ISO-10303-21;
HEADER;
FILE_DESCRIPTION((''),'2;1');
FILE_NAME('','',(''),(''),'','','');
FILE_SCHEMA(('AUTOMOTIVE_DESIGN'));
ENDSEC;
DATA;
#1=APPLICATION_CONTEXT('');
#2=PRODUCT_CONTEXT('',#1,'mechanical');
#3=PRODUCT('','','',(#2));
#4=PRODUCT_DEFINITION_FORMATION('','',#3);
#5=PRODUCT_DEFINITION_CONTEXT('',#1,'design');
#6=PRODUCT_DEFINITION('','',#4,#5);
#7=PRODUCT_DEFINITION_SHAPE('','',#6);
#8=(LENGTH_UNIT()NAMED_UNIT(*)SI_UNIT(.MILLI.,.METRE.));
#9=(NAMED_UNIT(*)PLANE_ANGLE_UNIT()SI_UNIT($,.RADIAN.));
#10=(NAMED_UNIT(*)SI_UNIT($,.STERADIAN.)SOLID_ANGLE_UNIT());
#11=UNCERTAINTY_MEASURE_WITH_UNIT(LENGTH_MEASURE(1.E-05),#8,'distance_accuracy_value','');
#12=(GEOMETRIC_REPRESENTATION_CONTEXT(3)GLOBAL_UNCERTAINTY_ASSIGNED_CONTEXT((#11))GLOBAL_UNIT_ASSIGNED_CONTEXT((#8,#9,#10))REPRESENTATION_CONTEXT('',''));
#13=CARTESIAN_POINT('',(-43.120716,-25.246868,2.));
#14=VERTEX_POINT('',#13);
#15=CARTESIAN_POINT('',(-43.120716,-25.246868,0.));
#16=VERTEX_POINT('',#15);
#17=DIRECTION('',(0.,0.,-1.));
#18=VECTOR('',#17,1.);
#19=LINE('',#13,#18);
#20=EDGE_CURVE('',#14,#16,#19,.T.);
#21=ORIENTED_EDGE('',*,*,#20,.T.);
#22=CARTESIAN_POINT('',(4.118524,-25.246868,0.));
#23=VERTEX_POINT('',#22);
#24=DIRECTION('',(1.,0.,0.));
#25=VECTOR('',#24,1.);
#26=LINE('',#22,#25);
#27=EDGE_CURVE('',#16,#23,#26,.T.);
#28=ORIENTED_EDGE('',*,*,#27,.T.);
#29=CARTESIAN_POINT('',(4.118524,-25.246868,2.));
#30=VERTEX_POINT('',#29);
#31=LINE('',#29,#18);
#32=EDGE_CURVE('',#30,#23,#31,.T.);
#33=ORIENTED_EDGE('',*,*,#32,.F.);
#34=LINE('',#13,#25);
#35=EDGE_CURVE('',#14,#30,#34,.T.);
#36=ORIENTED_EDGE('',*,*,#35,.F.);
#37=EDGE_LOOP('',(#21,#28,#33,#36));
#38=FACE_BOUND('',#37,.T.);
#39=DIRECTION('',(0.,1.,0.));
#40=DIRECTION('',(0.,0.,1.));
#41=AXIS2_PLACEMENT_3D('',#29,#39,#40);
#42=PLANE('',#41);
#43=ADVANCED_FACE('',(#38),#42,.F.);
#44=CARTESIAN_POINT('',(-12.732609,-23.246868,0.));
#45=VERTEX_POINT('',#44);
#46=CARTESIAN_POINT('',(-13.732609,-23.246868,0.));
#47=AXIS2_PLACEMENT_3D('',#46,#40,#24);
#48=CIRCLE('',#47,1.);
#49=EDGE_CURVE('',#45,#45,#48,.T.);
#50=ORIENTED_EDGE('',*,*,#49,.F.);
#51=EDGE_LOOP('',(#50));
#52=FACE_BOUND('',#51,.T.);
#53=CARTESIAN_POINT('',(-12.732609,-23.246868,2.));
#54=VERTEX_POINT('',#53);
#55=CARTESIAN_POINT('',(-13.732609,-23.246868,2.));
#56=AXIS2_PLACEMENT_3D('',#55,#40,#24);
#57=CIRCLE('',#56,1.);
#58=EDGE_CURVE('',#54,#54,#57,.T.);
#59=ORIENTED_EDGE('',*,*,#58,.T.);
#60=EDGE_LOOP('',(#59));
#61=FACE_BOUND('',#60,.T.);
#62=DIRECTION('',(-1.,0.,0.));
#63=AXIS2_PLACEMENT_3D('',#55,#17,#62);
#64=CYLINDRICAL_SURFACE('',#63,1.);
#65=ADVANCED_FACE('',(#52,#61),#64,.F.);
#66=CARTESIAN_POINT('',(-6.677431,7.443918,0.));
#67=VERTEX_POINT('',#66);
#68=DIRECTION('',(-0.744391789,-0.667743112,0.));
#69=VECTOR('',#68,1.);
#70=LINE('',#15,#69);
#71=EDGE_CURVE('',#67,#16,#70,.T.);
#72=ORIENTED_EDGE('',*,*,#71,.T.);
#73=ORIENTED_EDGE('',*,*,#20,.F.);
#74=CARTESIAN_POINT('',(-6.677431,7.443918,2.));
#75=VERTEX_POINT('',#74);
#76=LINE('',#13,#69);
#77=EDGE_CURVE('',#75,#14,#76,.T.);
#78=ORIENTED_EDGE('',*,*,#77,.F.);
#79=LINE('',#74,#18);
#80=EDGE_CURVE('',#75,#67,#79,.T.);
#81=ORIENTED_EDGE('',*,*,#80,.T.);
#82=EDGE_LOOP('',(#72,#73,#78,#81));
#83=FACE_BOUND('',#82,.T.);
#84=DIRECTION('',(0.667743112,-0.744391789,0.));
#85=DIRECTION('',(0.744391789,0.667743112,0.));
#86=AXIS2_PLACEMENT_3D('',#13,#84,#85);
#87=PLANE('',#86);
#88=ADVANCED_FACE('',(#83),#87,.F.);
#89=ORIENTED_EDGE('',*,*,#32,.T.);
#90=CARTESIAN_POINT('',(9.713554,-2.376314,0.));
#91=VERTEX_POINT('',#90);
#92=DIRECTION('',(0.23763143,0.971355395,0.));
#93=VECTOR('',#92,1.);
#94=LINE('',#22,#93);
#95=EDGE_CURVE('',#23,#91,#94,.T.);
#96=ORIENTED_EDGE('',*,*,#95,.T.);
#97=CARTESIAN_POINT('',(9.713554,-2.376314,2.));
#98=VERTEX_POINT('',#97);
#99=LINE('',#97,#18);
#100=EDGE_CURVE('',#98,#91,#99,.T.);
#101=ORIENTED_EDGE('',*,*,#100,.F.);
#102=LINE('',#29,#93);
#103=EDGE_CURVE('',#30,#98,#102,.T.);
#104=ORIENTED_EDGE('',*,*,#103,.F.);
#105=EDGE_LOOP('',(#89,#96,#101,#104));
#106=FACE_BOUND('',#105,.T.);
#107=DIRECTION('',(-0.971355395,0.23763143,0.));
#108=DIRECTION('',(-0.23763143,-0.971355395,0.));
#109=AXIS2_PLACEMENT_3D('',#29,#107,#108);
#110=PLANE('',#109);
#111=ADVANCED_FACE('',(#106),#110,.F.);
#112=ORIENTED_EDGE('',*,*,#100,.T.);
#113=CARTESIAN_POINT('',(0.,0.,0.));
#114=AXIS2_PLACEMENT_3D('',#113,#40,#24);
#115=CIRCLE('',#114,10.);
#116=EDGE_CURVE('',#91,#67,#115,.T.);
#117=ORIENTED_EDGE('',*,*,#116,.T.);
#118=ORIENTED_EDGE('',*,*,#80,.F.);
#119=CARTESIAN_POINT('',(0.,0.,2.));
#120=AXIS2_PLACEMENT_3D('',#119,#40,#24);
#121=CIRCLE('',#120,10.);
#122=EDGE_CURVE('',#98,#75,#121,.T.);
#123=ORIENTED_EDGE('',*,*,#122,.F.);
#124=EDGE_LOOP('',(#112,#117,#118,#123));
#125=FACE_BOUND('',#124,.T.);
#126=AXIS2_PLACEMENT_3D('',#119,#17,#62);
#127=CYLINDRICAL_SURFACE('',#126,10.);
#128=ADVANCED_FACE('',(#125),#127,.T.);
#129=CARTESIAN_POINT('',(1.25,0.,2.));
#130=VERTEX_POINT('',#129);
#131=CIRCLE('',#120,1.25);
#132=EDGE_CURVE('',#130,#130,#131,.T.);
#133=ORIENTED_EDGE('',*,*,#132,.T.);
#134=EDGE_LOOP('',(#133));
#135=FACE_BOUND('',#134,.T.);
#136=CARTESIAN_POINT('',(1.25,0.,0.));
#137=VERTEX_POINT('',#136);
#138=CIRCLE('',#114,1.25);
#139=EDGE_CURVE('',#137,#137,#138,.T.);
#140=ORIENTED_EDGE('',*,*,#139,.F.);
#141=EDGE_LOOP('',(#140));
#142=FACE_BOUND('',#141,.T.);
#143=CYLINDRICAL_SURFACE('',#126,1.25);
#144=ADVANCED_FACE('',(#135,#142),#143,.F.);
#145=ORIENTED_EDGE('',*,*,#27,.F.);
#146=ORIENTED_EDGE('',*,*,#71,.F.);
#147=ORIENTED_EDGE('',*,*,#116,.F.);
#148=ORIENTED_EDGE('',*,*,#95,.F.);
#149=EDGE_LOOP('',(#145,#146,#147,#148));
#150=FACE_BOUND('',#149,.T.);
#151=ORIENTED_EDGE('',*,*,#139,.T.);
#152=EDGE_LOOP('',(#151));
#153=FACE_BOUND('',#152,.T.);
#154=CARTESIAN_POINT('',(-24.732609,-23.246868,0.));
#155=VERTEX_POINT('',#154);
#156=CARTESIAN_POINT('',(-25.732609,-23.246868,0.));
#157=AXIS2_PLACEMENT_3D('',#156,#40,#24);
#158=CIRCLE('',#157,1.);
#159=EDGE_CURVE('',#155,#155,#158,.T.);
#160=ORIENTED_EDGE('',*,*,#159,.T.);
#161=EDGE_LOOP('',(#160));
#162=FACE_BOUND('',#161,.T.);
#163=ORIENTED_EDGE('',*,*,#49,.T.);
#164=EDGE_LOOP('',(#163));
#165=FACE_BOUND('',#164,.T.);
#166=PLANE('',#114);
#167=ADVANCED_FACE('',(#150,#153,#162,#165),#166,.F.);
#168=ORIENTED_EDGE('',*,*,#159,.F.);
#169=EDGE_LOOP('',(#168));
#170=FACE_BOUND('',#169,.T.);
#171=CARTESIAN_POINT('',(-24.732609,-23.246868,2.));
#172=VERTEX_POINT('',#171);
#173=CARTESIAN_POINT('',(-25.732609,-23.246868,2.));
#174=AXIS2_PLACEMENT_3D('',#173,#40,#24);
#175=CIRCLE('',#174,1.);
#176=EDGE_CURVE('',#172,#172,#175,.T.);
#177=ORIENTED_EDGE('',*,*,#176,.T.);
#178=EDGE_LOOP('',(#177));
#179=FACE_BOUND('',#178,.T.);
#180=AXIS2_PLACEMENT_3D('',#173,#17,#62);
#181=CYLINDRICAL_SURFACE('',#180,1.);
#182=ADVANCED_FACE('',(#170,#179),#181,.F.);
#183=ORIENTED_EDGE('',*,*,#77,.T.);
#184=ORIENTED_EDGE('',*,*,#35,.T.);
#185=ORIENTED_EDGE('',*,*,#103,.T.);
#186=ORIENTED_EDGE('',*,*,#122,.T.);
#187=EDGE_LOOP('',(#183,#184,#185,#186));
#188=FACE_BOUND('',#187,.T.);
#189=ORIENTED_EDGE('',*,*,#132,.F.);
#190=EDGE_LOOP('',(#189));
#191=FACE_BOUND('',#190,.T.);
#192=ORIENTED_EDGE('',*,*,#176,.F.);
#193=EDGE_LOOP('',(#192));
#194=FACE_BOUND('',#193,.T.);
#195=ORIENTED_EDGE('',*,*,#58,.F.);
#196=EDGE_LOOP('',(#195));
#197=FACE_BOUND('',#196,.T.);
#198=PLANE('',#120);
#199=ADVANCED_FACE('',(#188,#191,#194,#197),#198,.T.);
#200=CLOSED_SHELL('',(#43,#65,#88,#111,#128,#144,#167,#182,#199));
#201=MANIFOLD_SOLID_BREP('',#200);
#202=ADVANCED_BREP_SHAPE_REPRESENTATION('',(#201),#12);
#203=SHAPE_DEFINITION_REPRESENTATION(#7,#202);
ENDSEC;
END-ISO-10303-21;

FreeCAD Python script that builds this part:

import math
import FreeCAD as App
import Part
import Sketcher

doc = App.newDocument("Part")
body = doc.addObject("PartDesign::Body", "Body")

# Sketch on XY plane
sketch1 = body.newObject("Sketcher::SketchObject", "Sketch")
sketch1.AttachmentSupport = (doc.getObject("XY_Plane"), [""])
sketch1.MapMode = "FlatFace"
sketch1.addGeometry([
    Part.LineSegment(App.Vector(4.118524, -25.246868, 0), App.Vector(9.713554, -2.376314, 0)),  # 0
    Part.ArcOfCircle(Part.Circle(App.Vector(0, 0, 0), App.Vector(0, 0, 1), 10), math.radians(-13.746788), math.radians(131.893115)),  # 1
    Part.LineSegment(App.Vector(-6.677431, 7.443918, 0), App.Vector(-43.120716, -25.246868, 0)),  # 2
    Part.LineSegment(App.Vector(-43.120716, -25.246868, 0), App.Vector(4.118524, -25.246868, 0)),  # 3
    Part.Circle(App.Vector(-25.732609, -23.246868, 0), App.Vector(0, 0, 1), 1),  # 4
    Part.Circle(App.Vector(-13.732609, -23.246868, 0), App.Vector(0, 0, 1), 1),  # 5
    Part.Circle(App.Vector(0, 0, 0), App.Vector(0, 0, 1), 1.25),  # 6
], False)
sketch1.addConstraint([
    Sketcher.Constraint("Tangent", 0, 2, 1, 1),
    Sketcher.Constraint("Tangent", 1, 2, 2, 1),
    Sketcher.Constraint("Coincident", 2, 2, 3, 1),
    Sketcher.Constraint("Coincident", 3, 2, 0, 1),
    Sketcher.Constraint("Horizontal", 3),
    Sketcher.Constraint("Coincident", 1, 3, -1, 1),
    Sketcher.Constraint("Coincident", 6, 3, -1, 1),
    Sketcher.Constraint("Equal", 4, 5),
    Sketcher.Constraint("Horizontal", 4, 3, 5, 3),
    Sketcher.Constraint("Diameter", 4, 2.0),
    Sketcher.Constraint("Radius", 1, 10.0),
    Sketcher.Constraint("Diameter", 6, 2.5),
    Sketcher.Constraint("DistanceX", 4, 3, 5, 3, 12.0),
    Sketcher.Constraint("DistanceY", 2, 2, 4, 3, 2.0),
    Sketcher.Constraint("DistanceX", 3, 1, 3, 2, 47.23924),
    Sketcher.Constraint("Distance", 0, 23.544991),
    Sketcher.Constraint("Distance", 2, 48.957129),
    Sketcher.Constraint("DistanceX", 4, 3, -1, 1, 25.732609),
])
pad1 = body.newObject("PartDesign::Pad", "Pad")
pad1.Profile = sketch1
pad1.Length = 2

doc.recompute()
